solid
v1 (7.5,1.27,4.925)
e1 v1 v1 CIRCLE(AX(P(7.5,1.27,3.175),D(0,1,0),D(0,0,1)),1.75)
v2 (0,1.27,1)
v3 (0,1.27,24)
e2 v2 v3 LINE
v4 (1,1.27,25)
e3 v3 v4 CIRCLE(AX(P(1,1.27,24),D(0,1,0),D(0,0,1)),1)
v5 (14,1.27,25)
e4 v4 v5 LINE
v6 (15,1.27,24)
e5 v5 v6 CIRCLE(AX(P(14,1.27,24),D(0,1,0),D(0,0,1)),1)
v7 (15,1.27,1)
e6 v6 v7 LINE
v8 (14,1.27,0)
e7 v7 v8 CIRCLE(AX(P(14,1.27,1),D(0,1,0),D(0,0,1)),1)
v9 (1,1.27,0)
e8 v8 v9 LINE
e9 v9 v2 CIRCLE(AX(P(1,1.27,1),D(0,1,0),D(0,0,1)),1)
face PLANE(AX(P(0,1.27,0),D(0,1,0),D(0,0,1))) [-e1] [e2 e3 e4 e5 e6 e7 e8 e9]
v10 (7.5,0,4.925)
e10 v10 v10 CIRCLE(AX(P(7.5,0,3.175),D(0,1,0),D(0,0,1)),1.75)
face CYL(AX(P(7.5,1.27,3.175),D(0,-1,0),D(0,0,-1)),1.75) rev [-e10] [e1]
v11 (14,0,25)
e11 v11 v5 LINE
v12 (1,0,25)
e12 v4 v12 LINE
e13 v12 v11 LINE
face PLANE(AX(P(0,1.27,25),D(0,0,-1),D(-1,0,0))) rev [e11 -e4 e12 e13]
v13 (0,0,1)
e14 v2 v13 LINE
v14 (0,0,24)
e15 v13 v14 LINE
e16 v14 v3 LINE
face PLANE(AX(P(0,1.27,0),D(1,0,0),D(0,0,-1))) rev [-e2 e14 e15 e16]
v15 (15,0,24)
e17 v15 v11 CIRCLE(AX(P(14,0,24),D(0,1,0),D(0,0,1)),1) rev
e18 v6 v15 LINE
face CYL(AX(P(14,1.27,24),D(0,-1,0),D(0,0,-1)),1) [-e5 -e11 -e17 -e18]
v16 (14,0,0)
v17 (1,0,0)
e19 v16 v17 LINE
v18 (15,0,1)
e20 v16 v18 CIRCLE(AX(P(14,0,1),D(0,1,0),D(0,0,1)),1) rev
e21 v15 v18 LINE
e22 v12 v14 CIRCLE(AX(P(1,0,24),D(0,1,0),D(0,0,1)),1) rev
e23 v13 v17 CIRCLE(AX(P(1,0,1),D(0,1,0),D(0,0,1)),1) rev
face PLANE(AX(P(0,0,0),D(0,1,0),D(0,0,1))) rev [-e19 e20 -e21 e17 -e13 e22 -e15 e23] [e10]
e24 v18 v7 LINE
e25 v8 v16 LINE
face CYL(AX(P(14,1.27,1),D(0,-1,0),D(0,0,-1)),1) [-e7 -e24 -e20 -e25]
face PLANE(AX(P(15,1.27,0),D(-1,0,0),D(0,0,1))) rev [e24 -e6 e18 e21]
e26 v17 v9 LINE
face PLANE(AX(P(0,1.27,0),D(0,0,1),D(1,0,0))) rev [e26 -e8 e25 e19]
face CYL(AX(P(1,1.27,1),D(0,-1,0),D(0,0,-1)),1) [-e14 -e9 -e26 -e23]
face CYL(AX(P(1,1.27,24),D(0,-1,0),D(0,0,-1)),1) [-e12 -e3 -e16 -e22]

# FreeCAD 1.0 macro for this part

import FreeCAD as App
import Part
import Sketcher

V = App.Vector


def edges_at(feature, points):
    """Names of the edges that pass closest to the given points."""
    edges = feature.Shape.Edges
    near = lambda p: min(range(len(edges)), key=lambda i: edges[i].distToShape(Part.Vertex(*p))[0])
    return sorted({f"Edge{near(p) + 1}" for p in points})


def add_polygon(sketch, points):
    """Adds a closed chain of lines whose ends are joined by coincident constraints."""
    first, n = sketch.GeometryCount, len(points)
    for a, b in zip(points, points[1:] + points[:1]):
        sketch.addGeometry(Part.LineSegment(App.Vector(*a, 0), App.Vector(*b, 0)), False)
    for i in range(n):
        sketch.addConstraint(Sketcher.Constraint("Coincident", first + i, 2, first + (i + 1) % n, 1))

doc = App.newDocument("Part")
body = doc.addObject("PartDesign::Body", "Body")

sketch1 = body.newObject("Sketcher::SketchObject", "Sketch")
sketch1.AttachmentSupport = (doc.getObject("XZ_Plane"), [""])
sketch1.MapMode = "FlatFace"
add_polygon(sketch1, [(0, 0), (0, 25), (15, 25), (15, 0)])
sketch1.addGeometry(Part.Circle(V(7.5, 3.175, 0), V(0, 0, 1), 1.75), False)
sketch1.addConstraint(Sketcher.Constraint("Vertical", 0))
sketch1.addConstraint(Sketcher.Constraint("Horizontal", 1))
sketch1.addConstraint(Sketcher.Constraint("Vertical", 2))
sketch1.addConstraint(Sketcher.Constraint("Horizontal", 3))
sketch1.addConstraint(Sketcher.Constraint("Coincident", 3, 2, -1, 1))
sketch1.addConstraint(Sketcher.Constraint("Diameter", 4, 3.5))
sketch1.addConstraint(Sketcher.Constraint("DistanceX", 1, 1, 1, 2, 15.0))
sketch1.addConstraint(Sketcher.Constraint("DistanceY", 0, 1, 0, 2, 25.0))
sketch1.addConstraint(Sketcher.Constraint("DistanceX", -1, 1, 4, 3, 7.5))
sketch1.addConstraint(Sketcher.Constraint("DistanceY", -1, 1, 4, 3, 3.175))
pad1 = body.newObject("PartDesign::Pad", "Pad")
pad1.Profile = sketch1
pad1.Length = 1.27
pad1.Reversed = True
doc.recompute()

fillet = body.newObject("PartDesign::Fillet", "Fillet")
fillet.Base = (pad1, edges_at(pad1, [
    (0, 0.635, 0),
    (15, 0.635, 0),
    (15, 0.635, 25),
    (0, 0.635, 25),
]))
fillet.Radius = 1

doc.recompute()
